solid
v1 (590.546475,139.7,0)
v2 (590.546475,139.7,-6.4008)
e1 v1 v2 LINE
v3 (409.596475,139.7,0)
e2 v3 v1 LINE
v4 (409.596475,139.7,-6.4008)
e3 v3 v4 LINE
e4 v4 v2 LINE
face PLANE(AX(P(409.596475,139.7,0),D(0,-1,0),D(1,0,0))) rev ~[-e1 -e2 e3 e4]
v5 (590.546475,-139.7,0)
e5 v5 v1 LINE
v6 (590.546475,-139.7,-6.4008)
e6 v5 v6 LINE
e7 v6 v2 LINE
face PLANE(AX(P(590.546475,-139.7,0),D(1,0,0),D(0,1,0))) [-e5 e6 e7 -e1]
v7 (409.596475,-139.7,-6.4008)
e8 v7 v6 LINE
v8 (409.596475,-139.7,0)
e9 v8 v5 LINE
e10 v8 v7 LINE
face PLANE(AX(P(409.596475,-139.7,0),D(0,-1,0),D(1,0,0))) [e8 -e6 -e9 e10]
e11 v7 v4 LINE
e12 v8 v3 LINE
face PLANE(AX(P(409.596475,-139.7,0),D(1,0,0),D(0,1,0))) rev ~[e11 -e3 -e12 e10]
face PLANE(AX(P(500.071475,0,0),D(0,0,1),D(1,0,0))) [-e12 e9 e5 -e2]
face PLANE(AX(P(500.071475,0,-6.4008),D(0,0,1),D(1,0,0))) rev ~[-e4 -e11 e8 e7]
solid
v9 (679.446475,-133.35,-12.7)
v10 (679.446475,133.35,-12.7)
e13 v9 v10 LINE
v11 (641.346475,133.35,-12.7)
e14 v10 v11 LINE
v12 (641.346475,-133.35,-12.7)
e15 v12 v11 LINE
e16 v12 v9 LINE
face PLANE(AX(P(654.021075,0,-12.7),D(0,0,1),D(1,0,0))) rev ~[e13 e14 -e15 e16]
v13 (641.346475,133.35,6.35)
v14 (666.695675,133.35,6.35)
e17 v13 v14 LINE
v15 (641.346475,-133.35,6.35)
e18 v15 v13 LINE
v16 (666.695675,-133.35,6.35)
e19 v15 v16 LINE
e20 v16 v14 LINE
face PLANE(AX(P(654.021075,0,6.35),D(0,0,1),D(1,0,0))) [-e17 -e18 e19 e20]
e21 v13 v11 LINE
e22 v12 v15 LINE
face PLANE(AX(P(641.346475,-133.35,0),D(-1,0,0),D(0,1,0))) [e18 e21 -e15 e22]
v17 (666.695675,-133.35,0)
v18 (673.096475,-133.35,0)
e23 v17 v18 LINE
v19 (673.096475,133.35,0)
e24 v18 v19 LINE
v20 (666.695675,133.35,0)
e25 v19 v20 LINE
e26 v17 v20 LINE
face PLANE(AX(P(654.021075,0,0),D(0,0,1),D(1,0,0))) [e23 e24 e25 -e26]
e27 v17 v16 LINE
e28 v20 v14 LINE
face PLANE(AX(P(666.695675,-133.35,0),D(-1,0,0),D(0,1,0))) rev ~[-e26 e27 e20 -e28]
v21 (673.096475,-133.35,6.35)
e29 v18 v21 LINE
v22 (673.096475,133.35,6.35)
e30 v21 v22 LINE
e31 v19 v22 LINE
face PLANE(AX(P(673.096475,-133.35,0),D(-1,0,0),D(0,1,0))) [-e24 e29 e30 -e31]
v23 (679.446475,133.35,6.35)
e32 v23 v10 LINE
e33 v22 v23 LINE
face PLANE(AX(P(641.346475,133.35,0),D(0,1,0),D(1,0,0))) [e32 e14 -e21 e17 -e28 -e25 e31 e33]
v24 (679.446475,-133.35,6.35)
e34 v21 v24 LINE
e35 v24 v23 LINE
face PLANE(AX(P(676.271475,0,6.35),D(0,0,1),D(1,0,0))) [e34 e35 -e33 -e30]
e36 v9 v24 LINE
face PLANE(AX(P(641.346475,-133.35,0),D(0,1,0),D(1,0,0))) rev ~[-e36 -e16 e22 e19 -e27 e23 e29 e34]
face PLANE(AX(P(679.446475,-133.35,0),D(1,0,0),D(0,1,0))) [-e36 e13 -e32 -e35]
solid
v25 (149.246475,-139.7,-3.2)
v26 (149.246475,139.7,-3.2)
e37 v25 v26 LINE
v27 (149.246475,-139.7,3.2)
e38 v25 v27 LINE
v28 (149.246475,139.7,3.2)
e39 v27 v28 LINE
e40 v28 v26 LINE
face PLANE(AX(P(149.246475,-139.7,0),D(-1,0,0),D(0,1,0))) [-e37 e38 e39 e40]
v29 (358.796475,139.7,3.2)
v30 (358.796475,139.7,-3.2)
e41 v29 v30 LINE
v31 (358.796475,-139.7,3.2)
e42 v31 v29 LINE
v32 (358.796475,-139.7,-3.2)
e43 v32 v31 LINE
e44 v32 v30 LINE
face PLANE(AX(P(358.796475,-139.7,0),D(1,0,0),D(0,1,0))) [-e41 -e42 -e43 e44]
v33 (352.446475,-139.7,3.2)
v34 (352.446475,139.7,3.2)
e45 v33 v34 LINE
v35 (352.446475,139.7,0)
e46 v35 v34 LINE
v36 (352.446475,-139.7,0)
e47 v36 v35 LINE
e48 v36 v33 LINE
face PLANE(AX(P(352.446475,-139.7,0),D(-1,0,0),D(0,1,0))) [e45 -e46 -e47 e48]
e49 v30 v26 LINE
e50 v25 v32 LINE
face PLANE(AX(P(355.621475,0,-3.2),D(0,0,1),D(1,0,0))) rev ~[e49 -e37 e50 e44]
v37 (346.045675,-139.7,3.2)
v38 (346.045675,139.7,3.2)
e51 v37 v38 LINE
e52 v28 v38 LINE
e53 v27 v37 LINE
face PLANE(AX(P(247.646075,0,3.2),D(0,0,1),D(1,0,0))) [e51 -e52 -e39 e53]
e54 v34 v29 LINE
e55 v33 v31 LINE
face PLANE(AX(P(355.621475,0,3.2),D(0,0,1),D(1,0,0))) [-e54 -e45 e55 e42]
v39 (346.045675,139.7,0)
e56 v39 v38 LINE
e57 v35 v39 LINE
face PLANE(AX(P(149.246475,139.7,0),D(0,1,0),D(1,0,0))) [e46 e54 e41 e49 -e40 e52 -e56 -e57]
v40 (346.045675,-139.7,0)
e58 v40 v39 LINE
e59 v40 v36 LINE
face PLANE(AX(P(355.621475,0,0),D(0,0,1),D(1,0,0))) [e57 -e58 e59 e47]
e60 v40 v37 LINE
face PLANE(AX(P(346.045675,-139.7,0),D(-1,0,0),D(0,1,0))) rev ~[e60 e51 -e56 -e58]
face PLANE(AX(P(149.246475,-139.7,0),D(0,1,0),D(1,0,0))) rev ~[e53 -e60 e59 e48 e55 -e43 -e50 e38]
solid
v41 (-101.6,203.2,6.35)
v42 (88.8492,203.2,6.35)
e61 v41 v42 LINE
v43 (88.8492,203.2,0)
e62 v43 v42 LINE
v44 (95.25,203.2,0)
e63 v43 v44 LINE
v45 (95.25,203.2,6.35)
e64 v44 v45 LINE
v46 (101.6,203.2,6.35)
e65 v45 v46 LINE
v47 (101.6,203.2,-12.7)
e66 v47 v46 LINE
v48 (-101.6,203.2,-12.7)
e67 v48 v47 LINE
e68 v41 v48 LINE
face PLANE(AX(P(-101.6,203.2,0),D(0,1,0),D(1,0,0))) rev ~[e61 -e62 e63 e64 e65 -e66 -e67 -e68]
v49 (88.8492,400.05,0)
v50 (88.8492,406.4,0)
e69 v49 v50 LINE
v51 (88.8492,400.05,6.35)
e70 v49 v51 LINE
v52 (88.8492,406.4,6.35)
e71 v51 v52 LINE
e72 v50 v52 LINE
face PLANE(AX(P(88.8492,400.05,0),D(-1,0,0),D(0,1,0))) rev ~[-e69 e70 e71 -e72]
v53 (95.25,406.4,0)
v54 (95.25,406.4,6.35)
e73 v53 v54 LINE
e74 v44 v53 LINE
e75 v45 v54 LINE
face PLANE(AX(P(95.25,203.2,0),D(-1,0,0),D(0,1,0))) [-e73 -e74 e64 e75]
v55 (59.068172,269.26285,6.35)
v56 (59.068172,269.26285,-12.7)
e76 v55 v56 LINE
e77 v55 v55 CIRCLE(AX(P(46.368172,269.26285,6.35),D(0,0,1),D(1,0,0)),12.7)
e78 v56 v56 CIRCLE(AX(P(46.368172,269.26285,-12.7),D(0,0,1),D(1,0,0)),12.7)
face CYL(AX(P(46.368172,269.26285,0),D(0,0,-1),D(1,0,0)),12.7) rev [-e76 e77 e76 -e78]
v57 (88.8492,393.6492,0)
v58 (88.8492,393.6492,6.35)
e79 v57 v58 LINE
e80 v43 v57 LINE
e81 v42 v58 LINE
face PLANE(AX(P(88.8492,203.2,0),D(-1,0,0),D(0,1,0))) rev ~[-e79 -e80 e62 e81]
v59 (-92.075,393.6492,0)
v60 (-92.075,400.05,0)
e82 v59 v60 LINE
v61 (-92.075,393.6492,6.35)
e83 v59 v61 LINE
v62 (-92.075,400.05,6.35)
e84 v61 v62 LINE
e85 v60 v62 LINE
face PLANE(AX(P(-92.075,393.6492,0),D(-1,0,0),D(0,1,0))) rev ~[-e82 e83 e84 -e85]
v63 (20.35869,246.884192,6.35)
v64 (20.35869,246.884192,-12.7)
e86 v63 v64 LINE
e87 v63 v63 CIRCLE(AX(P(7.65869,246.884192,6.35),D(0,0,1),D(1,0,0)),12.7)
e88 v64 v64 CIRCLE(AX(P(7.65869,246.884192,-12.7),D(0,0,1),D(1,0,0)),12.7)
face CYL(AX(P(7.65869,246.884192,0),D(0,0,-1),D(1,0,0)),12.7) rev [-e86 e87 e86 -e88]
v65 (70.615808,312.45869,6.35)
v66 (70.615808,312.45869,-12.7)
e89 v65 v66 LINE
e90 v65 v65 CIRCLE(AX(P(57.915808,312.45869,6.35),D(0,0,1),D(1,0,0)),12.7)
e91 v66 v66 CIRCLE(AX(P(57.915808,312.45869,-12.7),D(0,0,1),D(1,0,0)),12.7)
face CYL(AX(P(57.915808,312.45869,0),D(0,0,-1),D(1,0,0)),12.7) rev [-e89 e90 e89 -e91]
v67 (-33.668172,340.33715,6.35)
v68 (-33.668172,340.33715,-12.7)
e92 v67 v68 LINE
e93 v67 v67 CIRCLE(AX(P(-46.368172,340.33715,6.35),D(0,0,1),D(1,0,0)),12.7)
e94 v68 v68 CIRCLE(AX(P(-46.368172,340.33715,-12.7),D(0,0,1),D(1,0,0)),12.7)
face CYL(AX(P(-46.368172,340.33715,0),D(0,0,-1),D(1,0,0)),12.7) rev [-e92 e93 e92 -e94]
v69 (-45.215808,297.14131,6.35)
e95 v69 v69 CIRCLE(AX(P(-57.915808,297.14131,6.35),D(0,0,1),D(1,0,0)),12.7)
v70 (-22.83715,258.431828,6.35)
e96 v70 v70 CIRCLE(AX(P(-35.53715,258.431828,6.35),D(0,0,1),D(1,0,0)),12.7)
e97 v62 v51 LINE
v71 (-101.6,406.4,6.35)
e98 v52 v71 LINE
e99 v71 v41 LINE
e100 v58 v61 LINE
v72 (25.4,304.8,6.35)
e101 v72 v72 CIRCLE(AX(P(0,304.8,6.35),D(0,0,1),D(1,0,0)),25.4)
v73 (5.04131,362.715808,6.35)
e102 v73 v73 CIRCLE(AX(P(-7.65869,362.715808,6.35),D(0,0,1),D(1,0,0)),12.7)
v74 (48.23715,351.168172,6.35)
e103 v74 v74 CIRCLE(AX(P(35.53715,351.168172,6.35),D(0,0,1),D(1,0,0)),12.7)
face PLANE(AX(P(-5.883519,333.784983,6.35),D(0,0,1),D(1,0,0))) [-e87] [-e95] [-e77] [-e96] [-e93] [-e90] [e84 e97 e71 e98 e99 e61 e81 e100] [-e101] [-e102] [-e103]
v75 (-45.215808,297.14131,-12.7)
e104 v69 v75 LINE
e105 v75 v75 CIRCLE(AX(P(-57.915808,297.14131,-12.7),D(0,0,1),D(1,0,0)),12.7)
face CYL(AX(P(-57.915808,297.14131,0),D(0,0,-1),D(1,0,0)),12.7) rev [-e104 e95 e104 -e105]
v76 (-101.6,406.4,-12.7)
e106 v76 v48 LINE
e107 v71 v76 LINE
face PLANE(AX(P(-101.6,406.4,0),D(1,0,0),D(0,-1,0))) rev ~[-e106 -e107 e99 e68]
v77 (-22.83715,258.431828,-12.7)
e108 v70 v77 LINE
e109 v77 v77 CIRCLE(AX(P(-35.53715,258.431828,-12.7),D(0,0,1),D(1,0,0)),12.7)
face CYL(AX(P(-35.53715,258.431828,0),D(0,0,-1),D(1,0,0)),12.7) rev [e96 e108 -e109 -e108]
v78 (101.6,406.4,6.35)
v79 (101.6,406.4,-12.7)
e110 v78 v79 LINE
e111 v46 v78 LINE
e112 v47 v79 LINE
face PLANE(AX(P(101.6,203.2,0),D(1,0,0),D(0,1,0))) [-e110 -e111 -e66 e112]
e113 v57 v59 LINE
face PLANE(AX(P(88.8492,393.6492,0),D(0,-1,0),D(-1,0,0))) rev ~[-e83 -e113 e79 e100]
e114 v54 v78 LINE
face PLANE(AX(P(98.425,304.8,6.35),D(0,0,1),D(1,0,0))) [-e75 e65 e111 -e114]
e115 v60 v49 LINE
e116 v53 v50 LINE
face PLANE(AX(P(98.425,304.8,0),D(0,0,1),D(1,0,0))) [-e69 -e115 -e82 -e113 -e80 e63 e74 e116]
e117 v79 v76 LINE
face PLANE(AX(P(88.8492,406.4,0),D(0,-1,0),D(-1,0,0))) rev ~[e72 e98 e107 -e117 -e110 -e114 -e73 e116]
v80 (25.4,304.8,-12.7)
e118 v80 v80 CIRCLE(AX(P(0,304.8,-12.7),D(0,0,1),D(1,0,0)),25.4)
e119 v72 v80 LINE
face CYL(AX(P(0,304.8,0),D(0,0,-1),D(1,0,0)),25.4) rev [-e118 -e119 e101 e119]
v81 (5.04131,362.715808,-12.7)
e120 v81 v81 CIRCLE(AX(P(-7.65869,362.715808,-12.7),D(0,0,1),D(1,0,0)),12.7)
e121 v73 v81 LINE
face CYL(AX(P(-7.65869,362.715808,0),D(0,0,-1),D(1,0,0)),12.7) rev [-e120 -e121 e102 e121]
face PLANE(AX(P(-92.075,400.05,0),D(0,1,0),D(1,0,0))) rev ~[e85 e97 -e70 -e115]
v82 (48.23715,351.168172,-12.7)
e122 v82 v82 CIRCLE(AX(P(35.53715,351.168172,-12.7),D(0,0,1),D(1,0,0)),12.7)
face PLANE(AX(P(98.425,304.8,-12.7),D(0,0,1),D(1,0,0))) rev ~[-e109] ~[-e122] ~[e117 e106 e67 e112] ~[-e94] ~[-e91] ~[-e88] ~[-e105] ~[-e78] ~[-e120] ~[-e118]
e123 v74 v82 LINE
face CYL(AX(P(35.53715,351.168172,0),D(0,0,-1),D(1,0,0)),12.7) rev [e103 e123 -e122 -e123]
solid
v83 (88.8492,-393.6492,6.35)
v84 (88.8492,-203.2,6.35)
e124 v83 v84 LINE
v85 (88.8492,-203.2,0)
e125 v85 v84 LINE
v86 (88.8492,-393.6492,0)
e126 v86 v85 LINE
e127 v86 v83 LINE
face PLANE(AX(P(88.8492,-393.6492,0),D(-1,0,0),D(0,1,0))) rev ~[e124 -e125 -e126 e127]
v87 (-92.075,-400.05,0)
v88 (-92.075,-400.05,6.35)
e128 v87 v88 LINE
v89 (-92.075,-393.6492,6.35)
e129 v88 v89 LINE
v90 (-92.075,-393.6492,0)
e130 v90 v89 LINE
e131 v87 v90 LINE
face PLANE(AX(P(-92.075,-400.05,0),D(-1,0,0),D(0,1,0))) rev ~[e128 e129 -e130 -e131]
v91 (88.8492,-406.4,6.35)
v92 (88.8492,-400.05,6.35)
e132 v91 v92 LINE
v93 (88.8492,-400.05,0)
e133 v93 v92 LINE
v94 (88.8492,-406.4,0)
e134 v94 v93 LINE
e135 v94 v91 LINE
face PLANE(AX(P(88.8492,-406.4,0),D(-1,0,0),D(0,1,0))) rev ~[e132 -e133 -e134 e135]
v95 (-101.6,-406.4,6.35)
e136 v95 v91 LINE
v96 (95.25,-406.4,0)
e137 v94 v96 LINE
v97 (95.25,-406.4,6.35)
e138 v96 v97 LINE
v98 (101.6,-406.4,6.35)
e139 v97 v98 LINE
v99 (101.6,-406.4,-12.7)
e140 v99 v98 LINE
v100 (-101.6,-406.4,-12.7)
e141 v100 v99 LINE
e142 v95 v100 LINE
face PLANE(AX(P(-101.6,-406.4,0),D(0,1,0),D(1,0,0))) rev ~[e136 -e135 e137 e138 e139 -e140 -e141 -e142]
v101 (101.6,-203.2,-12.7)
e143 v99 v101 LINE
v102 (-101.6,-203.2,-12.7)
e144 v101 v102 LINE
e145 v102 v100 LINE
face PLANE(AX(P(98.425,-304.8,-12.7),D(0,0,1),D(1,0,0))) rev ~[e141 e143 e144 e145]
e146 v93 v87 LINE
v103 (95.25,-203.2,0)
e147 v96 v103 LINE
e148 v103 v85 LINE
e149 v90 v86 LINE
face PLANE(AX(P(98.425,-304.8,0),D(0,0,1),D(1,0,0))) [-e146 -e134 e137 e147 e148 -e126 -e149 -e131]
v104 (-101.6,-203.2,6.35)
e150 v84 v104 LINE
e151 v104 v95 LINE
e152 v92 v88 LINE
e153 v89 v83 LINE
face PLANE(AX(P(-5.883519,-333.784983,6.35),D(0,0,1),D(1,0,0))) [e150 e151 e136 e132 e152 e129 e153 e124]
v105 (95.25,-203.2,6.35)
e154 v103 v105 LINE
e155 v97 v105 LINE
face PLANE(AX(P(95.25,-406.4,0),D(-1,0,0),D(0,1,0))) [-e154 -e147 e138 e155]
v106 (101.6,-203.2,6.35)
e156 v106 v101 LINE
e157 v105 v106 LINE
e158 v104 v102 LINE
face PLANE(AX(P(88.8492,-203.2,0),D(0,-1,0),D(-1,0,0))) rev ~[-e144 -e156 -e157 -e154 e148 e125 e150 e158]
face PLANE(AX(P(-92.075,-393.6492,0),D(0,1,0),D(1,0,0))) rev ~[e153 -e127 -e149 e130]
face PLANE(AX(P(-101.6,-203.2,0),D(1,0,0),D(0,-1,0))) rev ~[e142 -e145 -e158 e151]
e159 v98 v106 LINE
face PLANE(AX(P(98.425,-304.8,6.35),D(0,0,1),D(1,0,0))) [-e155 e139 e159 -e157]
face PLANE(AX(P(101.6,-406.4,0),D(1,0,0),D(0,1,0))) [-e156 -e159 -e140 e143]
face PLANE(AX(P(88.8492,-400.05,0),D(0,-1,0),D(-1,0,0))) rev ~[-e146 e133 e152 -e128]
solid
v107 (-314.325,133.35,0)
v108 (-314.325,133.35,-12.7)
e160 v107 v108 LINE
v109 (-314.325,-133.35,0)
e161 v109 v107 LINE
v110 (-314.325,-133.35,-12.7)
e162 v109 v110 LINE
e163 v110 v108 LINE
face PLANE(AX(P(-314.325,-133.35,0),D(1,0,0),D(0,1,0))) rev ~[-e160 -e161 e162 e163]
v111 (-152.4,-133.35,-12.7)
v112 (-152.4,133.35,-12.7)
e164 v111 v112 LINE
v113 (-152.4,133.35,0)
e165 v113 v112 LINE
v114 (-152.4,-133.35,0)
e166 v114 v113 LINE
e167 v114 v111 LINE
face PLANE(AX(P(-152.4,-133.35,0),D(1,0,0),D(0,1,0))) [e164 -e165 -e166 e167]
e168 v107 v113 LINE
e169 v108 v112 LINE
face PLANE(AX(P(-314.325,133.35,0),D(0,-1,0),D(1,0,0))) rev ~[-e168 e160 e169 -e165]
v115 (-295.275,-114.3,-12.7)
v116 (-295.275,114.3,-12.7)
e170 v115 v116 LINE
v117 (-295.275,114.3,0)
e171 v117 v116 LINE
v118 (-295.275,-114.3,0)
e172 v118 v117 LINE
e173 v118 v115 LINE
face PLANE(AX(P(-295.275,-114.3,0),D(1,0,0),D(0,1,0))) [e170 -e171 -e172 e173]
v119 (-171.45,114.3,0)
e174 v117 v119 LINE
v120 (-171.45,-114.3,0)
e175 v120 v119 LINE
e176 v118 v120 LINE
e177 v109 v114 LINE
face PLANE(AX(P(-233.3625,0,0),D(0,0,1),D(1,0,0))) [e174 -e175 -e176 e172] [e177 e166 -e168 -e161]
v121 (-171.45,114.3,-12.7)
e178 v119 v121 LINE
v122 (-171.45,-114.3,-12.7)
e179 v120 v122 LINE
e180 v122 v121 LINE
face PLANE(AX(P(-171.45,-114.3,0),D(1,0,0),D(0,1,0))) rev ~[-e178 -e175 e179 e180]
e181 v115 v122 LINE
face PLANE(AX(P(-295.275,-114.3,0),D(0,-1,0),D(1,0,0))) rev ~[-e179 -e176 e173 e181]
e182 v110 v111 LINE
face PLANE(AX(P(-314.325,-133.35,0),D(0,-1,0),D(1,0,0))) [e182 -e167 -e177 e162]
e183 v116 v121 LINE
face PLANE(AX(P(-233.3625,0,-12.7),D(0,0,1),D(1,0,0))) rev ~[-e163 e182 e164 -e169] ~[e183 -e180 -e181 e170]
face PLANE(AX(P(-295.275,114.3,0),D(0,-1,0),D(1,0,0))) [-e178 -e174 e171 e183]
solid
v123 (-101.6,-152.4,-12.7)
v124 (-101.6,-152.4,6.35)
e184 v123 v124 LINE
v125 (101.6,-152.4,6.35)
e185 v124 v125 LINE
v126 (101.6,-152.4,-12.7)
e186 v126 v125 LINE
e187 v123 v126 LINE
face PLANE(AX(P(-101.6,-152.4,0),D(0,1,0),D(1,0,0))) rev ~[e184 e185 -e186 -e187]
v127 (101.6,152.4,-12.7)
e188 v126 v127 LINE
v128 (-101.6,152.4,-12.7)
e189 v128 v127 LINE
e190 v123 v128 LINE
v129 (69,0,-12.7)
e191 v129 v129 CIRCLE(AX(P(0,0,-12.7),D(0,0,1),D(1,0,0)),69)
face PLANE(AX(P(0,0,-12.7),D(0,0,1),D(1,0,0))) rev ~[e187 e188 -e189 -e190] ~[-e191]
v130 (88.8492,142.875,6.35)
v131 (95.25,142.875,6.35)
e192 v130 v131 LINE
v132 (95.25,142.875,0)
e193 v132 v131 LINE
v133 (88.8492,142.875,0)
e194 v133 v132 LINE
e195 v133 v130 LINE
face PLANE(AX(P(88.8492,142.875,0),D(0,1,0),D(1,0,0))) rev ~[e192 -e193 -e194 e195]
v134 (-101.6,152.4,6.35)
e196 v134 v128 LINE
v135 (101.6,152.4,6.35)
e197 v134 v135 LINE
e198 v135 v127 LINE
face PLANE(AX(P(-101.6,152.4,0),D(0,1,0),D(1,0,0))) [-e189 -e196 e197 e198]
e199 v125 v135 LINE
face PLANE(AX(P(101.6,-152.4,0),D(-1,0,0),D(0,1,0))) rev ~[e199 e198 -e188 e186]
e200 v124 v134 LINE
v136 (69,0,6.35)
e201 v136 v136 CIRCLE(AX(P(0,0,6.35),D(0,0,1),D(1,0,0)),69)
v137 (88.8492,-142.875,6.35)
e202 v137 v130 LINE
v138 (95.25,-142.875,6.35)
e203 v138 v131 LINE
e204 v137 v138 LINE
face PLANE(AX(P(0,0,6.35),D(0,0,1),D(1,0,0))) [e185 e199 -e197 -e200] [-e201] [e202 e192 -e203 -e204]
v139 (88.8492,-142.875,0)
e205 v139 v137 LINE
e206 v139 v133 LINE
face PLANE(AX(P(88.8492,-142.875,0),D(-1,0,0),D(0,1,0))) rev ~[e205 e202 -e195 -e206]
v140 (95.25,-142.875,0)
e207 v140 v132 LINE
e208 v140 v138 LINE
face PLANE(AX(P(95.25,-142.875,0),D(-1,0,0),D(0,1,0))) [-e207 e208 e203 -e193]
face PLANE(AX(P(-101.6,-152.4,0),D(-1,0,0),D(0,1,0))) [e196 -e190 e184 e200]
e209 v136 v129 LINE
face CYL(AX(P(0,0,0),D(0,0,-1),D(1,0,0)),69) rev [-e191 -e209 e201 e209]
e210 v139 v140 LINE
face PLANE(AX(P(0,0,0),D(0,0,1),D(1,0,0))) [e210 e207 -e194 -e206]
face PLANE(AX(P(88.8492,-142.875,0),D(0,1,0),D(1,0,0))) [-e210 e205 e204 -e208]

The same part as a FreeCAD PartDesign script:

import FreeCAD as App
import Part
import Sketcher
from FreeCAD import Vector
Q = App.Units.Quantity


def add_polygon(sketch, points):
    """Adds a closed chain of lines whose ends are joined by coincident constraints."""
    first, n = sketch.GeometryCount, len(points)
    for a, b in zip(points, points[1:] + points[:1]):
        sketch.addGeometry(Part.LineSegment(App.Vector(*a, 0), App.Vector(*b, 0)), False)
    for i in range(n):
        sketch.addConstraint(Sketcher.Constraint("Coincident", first + i, 2, first + (i + 1) % n, 1))

doc = App.newDocument("Part")
body = doc.addObject("PartDesign::Body", "Body")

# Sketch on XY plane
sketch1 = doc.addObject("Sketcher::SketchObject", "Sketch")
body.addObject(sketch1)
sketch1.AttachmentSupport = (doc.XY_Plane, [""])
sketch1.MapMode = "FlatFace"
add_polygon(sketch1, [(-102, 152), (-102, -152), (102, -152), (102, 152)])  # lines 0-3
sketch1.addGeometry(Part.Circle(Vector(0, 0, 0), Vector(0, 0, 1), 69), False)  # 4
sketch1.addConstraint(Sketcher.Constraint("Vertical", 0))
sketch1.addConstraint(Sketcher.Constraint("Horizontal", 1))
sketch1.addConstraint(Sketcher.Constraint("Vertical", 2))
sketch1.addConstraint(Sketcher.Constraint("Horizontal", 3))
sketch1.addConstraint(Sketcher.Constraint("Coincident", 4, 3, -1, 1))
sketch1.addConstraint(Sketcher.Constraint("Symmetric", 0, 2, 2, 2, -1, 1))
sketch1.addConstraint(Sketcher.Constraint("DistanceX", 1, 1, 1, 2, Q("8 in")))
sketch1.addConstraint(Sketcher.Constraint("DistanceY", 0, 2, 0, 1, Q("12 in")))
sketch1.addConstraint(Sketcher.Constraint("Diameter", 4, 138.0))
pad1 = doc.addObject("PartDesign::Pad", "Pad")
body.addObject(pad1)
pad1.Profile = sketch1
pad1.Length = Q("0.5 in")
pad1.Reversed = True

# Sketch on XY plane
sketch2 = doc.addObject("Sketcher::SketchObject", "Sketch001")
body.addObject(sketch2)
sketch2.AttachmentSupport = (doc.XY_Plane, [""])
sketch2.MapMode = "FlatFace"
add_polygon(sketch2, [(-102, 152), (-102, -152), (102, -152), (102, 152)])  # lines 0-3
sketch2.addGeometry(Part.Circle(Vector(0, 0, 0), Vector(0, 0, 1), 69), False)  # 4
add_polygon(sketch2, [(95, -143), (89, -143), (89, 143), (95, 143)])  # lines 5-8
sketch2.addConstraint(Sketcher.Constraint("Vertical", 0))
sketch2.addConstraint(Sketcher.Constraint("Horizontal", 1))
sketch2.addConstraint(Sketcher.Constraint("Vertical", 2))
sketch2.addConstraint(Sketcher.Constraint("Horizontal", 3))
sketch2.addConstraint(Sketcher.Constraint("Horizontal", 5))
sketch2.addConstraint(Sketcher.Constraint("Vertical", 6))
sketch2.addConstraint(Sketcher.Constraint("Horizontal", 7))
sketch2.addConstraint(Sketcher.Constraint("Vertical", 8))
sketch2.addConstraint(Sketcher.Constraint("Coincident", 4, 3, -1, 1))
sketch2.addConstraint(Sketcher.Constraint("Symmetric", 0, 2, 2, 2, -1, 1))
sketch2.addConstraint(Sketcher.Constraint("DistanceX", 1, 1, 1, 2, Q("8 in")))
sketch2.addConstraint(Sketcher.Constraint("DistanceY", 0, 2, 0, 1, Q("12 in")))
sketch2.addConstraint(Sketcher.Constraint("DistanceY", 6, 1, 6, 2, Q("11.25 in")))
sketch2.addConstraint(Sketcher.Constraint("Diameter", 4, 138.0))
sketch2.addConstraint(Sketcher.Constraint("DistanceX", 5, 2, 5, 1, Q("0.252 in")))
sketch2.addConstraint(Sketcher.Constraint("DistanceX", -1, 1, 7, 2, Q("3.75 in")))
sketch2.addConstraint(Sketcher.Constraint("DistanceY", 5, 2, -1, 1, Q("5.625 in")))
pad2 = doc.addObject("PartDesign::Pad", "Pad001")
body.addObject(pad2)
pad2.Profile = sketch2
pad2.Length = Q("0.25 in")
body2 = doc.addObject("PartDesign::Body", "Body001")

# Sketch on XY plane
sketch3 = doc.addObject("Sketcher::SketchObject", "Sketch002")
body2.addObject(sketch3)
sketch3.AttachmentSupport = (doc.getObject("XY_Plane001"), [""])
sketch3.MapMode = "FlatFace"
add_polygon(sketch3, [(102, -406), (102, -203), (-102, -203), (-102, -406)])  # lines 0-3
sketch3.addConstraint(Sketcher.Constraint("Vertical", 0))
sketch3.addConstraint(Sketcher.Constraint("Horizontal", 1))
sketch3.addConstraint(Sketcher.Constraint("Vertical", 2))
sketch3.addConstraint(Sketcher.Constraint("Horizontal", 3))
sketch3.addConstraint(Sketcher.Constraint("Equal", 3, 0))
sketch3.addConstraint(Sketcher.Constraint("DistanceX", 1, 2, 1, 1, Q("8 in")))
sketch3.addConstraint(Sketcher.Constraint("DistanceX", -1, 1, 0, 2, Q("4 in")))
sketch3.addConstraint(Sketcher.Constraint("DistanceY", 0, 2, -1, 1, Q("8 in")))
pad3 = doc.addObject("PartDesign::Pad", "Pad002")
body2.addObject(pad3)
pad3.Profile = sketch3
pad3.Length = Q("0.5 in")
pad3.Reversed = True

# Sketch on XY plane
sketch4 = doc.addObject("Sketcher::SketchObject", "Sketch003")
body2.addObject(sketch4)
sketch4.AttachmentSupport = (doc.getObject("XY_Plane001"), [""])
sketch4.MapMode = "FlatFace"
add_polygon(sketch4, [(-102, -406), (89, -406), (89, -400), (-92, -400), (-92, -394), (89, -394), (89, -203), (-102, -203)])  # lines 0-7
add_polygon(sketch4, [(95, -203), (95, -406), (102, -406), (102, -203)])  # lines 8-11
sketch4.addConstraint(Sketcher.Constraint("Horizontal", 0))
sketch4.addConstraint(Sketcher.Constraint("Vertical", 1))
sketch4.addConstraint(Sketcher.Constraint("Horizontal", 2))
sketch4.addConstraint(Sketcher.Constraint("Vertical", 3))
sketch4.addConstraint(Sketcher.Constraint("Horizontal", 4))
sketch4.addConstraint(Sketcher.Constraint("Vertical", 5))
sketch4.addConstraint(Sketcher.Constraint("Horizontal", 6))
sketch4.addConstraint(Sketcher.Constraint("Vertical", 7))
sketch4.addConstraint(Sketcher.Constraint("Vertical", 8))
sketch4.addConstraint(Sketcher.Constraint("Horizontal", 9))
sketch4.addConstraint(Sketcher.Constraint("Vertical", 10))
sketch4.addConstraint(Sketcher.Constraint("Horizontal", 11))
sketch4.addConstraint(Sketcher.Constraint("Symmetric", 7, 2, 9, 2, -2))
sketch4.addConstraint(Sketcher.Constraint("Horizontal", 6, 2, 10, 2))
sketch4.addConstraint(Sketcher.Constraint("Vertical", 1, 2, 4, 2))
sketch4.addConstraint(Sketcher.Constraint("Equal", 11, 1))
sketch4.addConstraint(Sketcher.Constraint("Equal", 6, 5))
sketch4.addConstraint(Sketcher.Constraint("DistanceY", 7, 2, 7, 1, Q("8 in")))
sketch4.addConstraint(Sketcher.Constraint("DistanceY", 0, 2, -1, 1, Q("16 in")))
sketch4.addConstraint(Sketcher.Constraint("DistanceX", 6, 2, -1, 1, Q("4 in")))
sketch4.addConstraint(Sketcher.Constraint("DistanceX", 9, 1, 9, 2, Q("0.25 in")))
sketch4.addConstraint(Sketcher.Constraint("DistanceX", 0, 1, 0, 2, Q("7.498 in")))
sketch4.addConstraint(Sketcher.Constraint("DistanceX", 2, 2, 2, 1, Q("7.123 in")))
pad4 = doc.addObject("PartDesign::Pad", "Pad003")
body2.addObject(pad4)
pad4.Profile = sketch4
pad4.Length = Q("0.25 in")
body3 = doc.addObject("PartDesign::Body", "Body002")

# Sketch on XY plane
sketch5 = doc.addObject("Sketcher::SketchObject", "Sketch004")
body3.addObject(sketch5)
sketch5.AttachmentSupport = (doc.getObject("XY_Plane002"), [""])
sketch5.MapMode = "FlatFace"
add_polygon(sketch5, [(102, 203), (102, 406), (-102, 406), (-102, 203)])  # lines 0-3
sketch5.addGeometry(Part.Circle(Vector(58, 312, 0), Vector(0, 0, 1), 13), False)  # 4
sketch5.addGeometry(Part.Circle(Vector(36, 351, 0), Vector(0, 0, 1), 13), False)  # 5
sketch5.addGeometry(Part.Circle(Vector(-36, 258, 0), Vector(0, 0, 1), 13), False)  # 6
sketch5.addGeometry(Part.Circle(Vector(-58, 297, 0), Vector(0, 0, 1), 13), False)  # 7
sketch5.addGeometry(Part.Circle(Vector(8, 247, 0), Vector(0, 0, 1), 13), False)  # 8
sketch5.addGeometry(Part.Circle(Vector(46, 269, 0), Vector(0, 0, 1), 13), False)  # 9
sketch5.addGeometry(Part.Circle(Vector(-46, 340, 0), Vector(0, 0, 1), 13), False)  # 10
sketch5.addGeometry(Part.Circle(Vector(-8, 363, 0), Vector(0, 0, 1), 13), False)  # 11
sketch5.addGeometry(Part.Circle(Vector(0, 305, 0), Vector(0, 0, 1), 25), False)  # 12
sketch5.addConstraint(Sketcher.Constraint("Vertical", 0))
sketch5.addConstraint(Sketcher.Constraint("Horizontal", 1))
sketch5.addConstraint(Sketcher.Constraint("Vertical", 2))
sketch5.addConstraint(Sketcher.Constraint("Horizontal", 3))
sketch5.addConstraint(Sketcher.Constraint("Equal", 4, 5))
sketch5.addConstraint(Sketcher.Constraint("Equal", 5, 6))
sketch5.addConstraint(Sketcher.Constraint("Equal", 6, 7))
sketch5.addConstraint(Sketcher.Constraint("Equal", 7, 8))
sketch5.addConstraint(Sketcher.Constraint("Equal", 8, 9))
sketch5.addConstraint(Sketcher.Constraint("Equal", 9, 10))
sketch5.addConstraint(Sketcher.Constraint("Equal", 10, 11))
sketch5.addConstraint(Sketcher.Constraint("PointOnObject", 12, 3, -2))
sketch5.addConstraint(Sketcher.Constraint("Equal", 3, 0))
sketch5.addConstraint(Sketcher.Constraint("Diameter", 4, Q("1 in")))
sketch5.addConstraint(Sketcher.Constraint("Diameter", 12, Q("2 in")))
sketch5.addConstraint(Sketcher.Constraint("DistanceX", 1, 2, 1, 1, Q("8 in")))
sketch5.addConstraint(Sketcher.Constraint("DistanceY", -1, 1, 12, 3, Q("12 in")))
sketch5.addConstraint(Sketcher.Constraint("DistanceX", -1, 1, 0, 2, Q("4 in")))
sketch5.addConstraint(Sketcher.Constraint("DistanceY", -1, 1, 0, 2, Q("16 in")))
sketch5.addConstraint(Sketcher.Constraint("DistanceX", 7, 3, 4, 3, Q("4.5602999 in")))
sketch5.addConstraint(Sketcher.Constraint("DistanceX", 6, 3, 5, 3, 71.074299))
sketch5.addConstraint(Sketcher.Constraint("DistanceY", 8, 3, 4, 3, 65.574498))
sketch5.addConstraint(Sketcher.Constraint("DistanceX", 7, 3, 8, 3, 65.574498))
sketch5.addConstraint(Sketcher.Constraint("DistanceX", 11, 3, 4, 3, 65.574498))
sketch5.addConstraint(Sketcher.Constraint("DistanceY", 7, 3, 11, 3, 65.574498))
sketch5.addConstraint(Sketcher.Constraint("DistanceX", -1, 1, 4, 3, 57.915808))
sketch5.addConstraint(Sketcher.Constraint("DistanceY", -1, 1, 4, 3, 312.45869))
sketch5.addConstraint(Sketcher.Constraint("DistanceX", -1, 1, 5, 3, 35.53715))
sketch5.addConstraint(Sketcher.Constraint("DistanceY", -1, 1, 7, 3, 297.14131))
sketch5.addConstraint(Sketcher.Constraint("DistanceY", -1, 1, 9, 3, 269.26285))
sketch5.addConstraint(Sketcher.Constraint("DistanceY", -1, 1, 10, 3, 340.33715))
sketch5.addConstraint(Sketcher.Constraint("DistanceY", 6, 3, 4, 3, 54.026862))
sketch5.addConstraint(Sketcher.Constraint("DistanceY", 7, 3, 5, 3, 54.026862))
sketch5.addConstraint(Sketcher.Constraint("DistanceX", 6, 3, 9, 3, 81.905322))
sketch5.addConstraint(Sketcher.Constraint("DistanceX", 10, 3, 5, 3, 81.905322))
pad5 = doc.addObject("PartDesign::Pad", "Pad004")
body3.addObject(pad5)
pad5.Profile = sketch5
pad5.Length = Q("0.5 in")
pad5.Reversed = True

# Sketch on XY plane
sketch6 = doc.addObject("Sketcher::SketchObject", "Sketch005")
body3.addObject(sketch6)
sketch6.AttachmentSupport = (doc.getObject("XY_Plane002"), [""])
sketch6.MapMode = "FlatFace"
add_polygon(sketch6, [(-102, 203), (89, 203), (89, 394), (-92, 394), (-92, 400), (89, 400), (89, 406), (-102, 406)])  # lines 0-7
sketch6.addGeometry(Part.Circle(Vector(-36, 258, 0), Vector(0, 0, 1), 13), False)  # 8
sketch6.addGeometry(Part.Circle(Vector(-58, 297, 0), Vector(0, 0, 1), 13), False)  # 9
sketch6.addGeometry(Part.Circle(Vector(8, 247, 0), Vector(0, 0, 1), 13), False)  # 10
sketch6.addGeometry(Part.Circle(Vector(46, 269, 0), Vector(0, 0, 1), 13), False)  # 11
sketch6.addGeometry(Part.Circle(Vector(-46, 340, 0), Vector(0, 0, 1), 13), False)  # 12
sketch6.addGeometry(Part.Circle(Vector(-8, 363, 0), Vector(0, 0, 1), 13), False)  # 13
sketch6.addGeometry(Part.Circle(Vector(0, 305, 0), Vector(0, 0, 1), 25), False)  # 14
sketch6.addGeometry(Part.Circle(Vector(58, 312, 0), Vector(0, 0, 1), 13), False)  # 15
sketch6.addGeometry(Part.Circle(Vector(36, 351, 0), Vector(0, 0, 1), 13), False)  # 16
add_polygon(sketch6, [(95, 406), (95, 203), (102, 203), (102, 406)])  # lines 17-20
sketch6.addConstraint(Sketcher.Constraint("Horizontal", 0))
sketch6.addConstraint(Sketcher.Constraint("Vertical", 1))
sketch6.addConstraint(Sketcher.Constraint("Horizontal", 2))
sketch6.addConstraint(Sketcher.Constraint("Vertical", 3))
sketch6.addConstraint(Sketcher.Constraint("Horizontal", 4))
sketch6.addConstraint(Sketcher.Constraint("Vertical", 5))
sketch6.addConstraint(Sketcher.Constraint("Horizontal", 6))
sketch6.addConstraint(Sketcher.Constraint("Vertical", 7))
sketch6.addConstraint(Sketcher.Constraint("Vertical", 17))
sketch6.addConstraint(Sketcher.Constraint("Horizontal", 18))
sketch6.addConstraint(Sketcher.Constraint("Vertical", 19))
sketch6.addConstraint(Sketcher.Constraint("Horizontal", 20))
sketch6.addConstraint(Sketcher.Constraint("Equal", 8, 9))
sketch6.addConstraint(Sketcher.Constraint("Equal", 9, 10))
sketch6.addConstraint(Sketcher.Constraint("Equal", 10, 11))
sketch6.addConstraint(Sketcher.Constraint("Equal", 11, 12))
sketch6.addConstraint(Sketcher.Constraint("Equal", 12, 13))
sketch6.addConstraint(Sketcher.Constraint("Equal", 13, 15))
sketch6.addConstraint(Sketcher.Constraint("Equal", 15, 16))
sketch6.addConstraint(Sketcher.Constraint("Symmetric", 7, 2, 18, 2, -2))
sketch6.addConstraint(Sketcher.Constraint("PointOnObject", 14, 3, -2))
sketch6.addConstraint(Sketcher.Constraint("Horizontal", 6, 2, 19, 2))
sketch6.addConstraint(Sketcher.Constraint("Vertical", 1, 2, 4, 2))
sketch6.addConstraint(Sketcher.Constraint("Equal", 6, 1))
sketch6.addConstraint(Sketcher.Constraint("Equal", 20, 5))
sketch6.addConstraint(Sketcher.Constraint("Diameter", 8, Q("1 in")))
sketch6.addConstraint(Sketcher.Constraint("Diameter", 14, Q("2 in")))
sketch6.addConstraint(Sketcher.Constraint("DistanceY", 7, 2, 7, 1, Q("8 in")))
sketch6.addConstraint(Sketcher.Constraint("DistanceY", -1, 1, 14, 3, Q("12 in")))
sketch6.addConstraint(Sketcher.Constraint("DistanceY", -1, 1, 0, 2, Q("8 in")))
sketch6.addConstraint(Sketcher.Constraint("DistanceX", 6, 2, -1, 1, Q("4 in")))
sketch6.addConstraint(Sketcher.Constraint("DistanceX", 18, 1, 18, 2, Q("0.25 in")))
sketch6.addConstraint(Sketcher.Constraint("DistanceX", 0, 1, 0, 2, Q("7.498 in")))
sketch6.addConstraint(Sketcher.Constraint("DistanceX", 2, 2, 2, 1, Q("7.123 in")))
sketch6.addConstraint(Sketcher.Constraint("DistanceY", 10, 3, 13, 3, Q("4.5602999 in")))
sketch6.addConstraint(Sketcher.Constraint("DistanceX", 9, 3, 10, 3, 65.574498))
sketch6.addConstraint(Sketcher.Constraint("DistanceY", 11, 3, 12, 3, 71.074299))
sketch6.addConstraint(Sketcher.Constraint("DistanceY", 9, 3, 13, 3, 65.574498))
sketch6.addConstraint(Sketcher.Constraint("DistanceY", 10, 3, 15, 3, 65.574498))
sketch6.addConstraint(Sketcher.Constraint("DistanceX", 13, 3, 15, 3, 65.574498))
sketch6.addConstraint(Sketcher.Constraint("DistanceX", 8, 3, -1, 1, 35.53715))
sketch6.addConstraint(Sketcher.Constraint("DistanceX", 9, 3, -1, 1, 57.915808))
sketch6.addConstraint(Sketcher.Constraint("DistanceY", -1, 1, 9, 3, 297.14131))
sketch6.addConstraint(Sketcher.Constraint("DistanceY", -1, 1, 11, 3, 269.26285))
sketch6.addConstraint(Sketcher.Constraint("DistanceX", 13, 3, -1, 1, 7.65869))
sketch6.addConstraint(Sketcher.Constraint("DistanceX", -1, 1, 16, 3, 35.53715))
sketch6.addConstraint(Sketcher.Constraint("DistanceX", 8, 3, 11, 3, 81.905322))
sketch6.addConstraint(Sketcher.Constraint("DistanceY", 8, 3, 12, 3, 81.905322))
sketch6.addConstraint(Sketcher.Constraint("DistanceX", 12, 3, 10, 3, 54.026862))
sketch6.addConstraint(Sketcher.Constraint("DistanceY", 11, 3, 16, 3, 81.905322))
pad6 = doc.addObject("PartDesign::Pad", "Pad005")
body3.addObject(pad6)
pad6.Profile = sketch6
pad6.Length = Q("0.25 in")
body4 = doc.addObject("PartDesign::Body", "Body003")

# Sketch on XY plane
sketch7 = doc.addObject("Sketcher::SketchObject", "Sketch006")
body4.addObject(sketch7)
sketch7.AttachmentSupport = (doc.getObject("XY_Plane003"), [""])
sketch7.MapMode = "FlatFace"
add_polygon(sketch7, [(359, -140), (359, 140), (149, 140), (149, -140)])  # lines 0-3
sketch7.addConstraint(Sketcher.Constraint("Vertical", 0))
sketch7.addConstraint(Sketcher.Constraint("Horizontal", 1))
sketch7.addConstraint(Sketcher.Constraint("Vertical", 2))
sketch7.addConstraint(Sketcher.Constraint("Horizontal", 3))
sketch7.addConstraint(Sketcher.Constraint("DistanceY", 0, 1, 0, 2, Q("11 in")))
sketch7.addConstraint(Sketcher.Constraint("DistanceX", 1, 2, 1, 1, Q("8.25 in")))
sketch7.addConstraint(Sketcher.Constraint("DistanceY", -1, 1, 0, 2, Q("5.5 in")))
sketch7.addConstraint(Sketcher.Constraint("DistanceX", -1, 1, 0, 2, 358.796475))
pad7 = doc.addObject("PartDesign::Pad", "Pad006")
body4.addObject(pad7)
pad7.Profile = sketch7
pad7.Length = 3.2
pad7.Reversed = True

# Sketch on XY plane
sketch8 = doc.addObject("Sketcher::SketchObject", "Sketch007")
body4.addObject(sketch8)
sketch8.AttachmentSupport = (doc.getObject("XY_Plane003"), [""])
sketch8.MapMode = "FlatFace"
add_polygon(sketch8, [(149, 140), (149, -140), (346, -140), (346, 140)])  # lines 0-3
add_polygon(sketch8, [(352, 140), (352, -140), (359, -140), (359, 140)])  # lines 4-7
sketch8.addConstraint(Sketcher.Constraint("Vertical", 0))
sketch8.addConstraint(Sketcher.Constraint("Horizontal", 1))
sketch8.addConstraint(Sketcher.Constraint("Vertical", 2))
sketch8.addConstraint(Sketcher.Constraint("Horizontal", 3))
sketch8.addConstraint(Sketcher.Constraint("Vertical", 4))
sketch8.addConstraint(Sketcher.Constraint("Horizontal", 5))
sketch8.addConstraint(Sketcher.Constraint("Vertical", 6))
sketch8.addConstraint(Sketcher.Constraint("Horizontal", 7))
sketch8.addConstraint(Sketcher.Constraint("Horizontal", 1, 2, 4, 2))
sketch8.addConstraint(Sketcher.Constraint("Horizontal", 3, 2, 6, 2))
sketch8.addConstraint(Sketcher.Constraint("DistanceY", 0, 2, 0, 1, Q("11 in")))
sketch8.addConstraint(Sketcher.Constraint("DistanceX", 0, 2, 4, 2, Q("8 in")))
sketch8.addConstraint(Sketcher.Constraint("DistanceX", 5, 1, 5, 2, Q("0.25 in")))
sketch8.addConstraint(Sketcher.Constraint("DistanceY", 0, 2, -1, 1, Q("5.5 in")))
sketch8.addConstraint(Sketcher.Constraint("DistanceX", 1, 1, 1, 2, Q("7.748 in")))
sketch8.addConstraint(Sketcher.Constraint("DistanceX", -1, 1, 0, 2, 149.246475))
pad8 = doc.addObject("PartDesign::Pad", "Pad007")
body4.addObject(pad8)
pad8.Profile = sketch8
pad8.Length = 3.2
body5 = doc.addObject("PartDesign::Body", "Body004")

# Sketch on XY plane
sketch9 = doc.addObject("Sketcher::SketchObject", "Sketch008")
body5.addObject(sketch9)
sketch9.AttachmentSupport = (doc.getObject("XY_Plane004"), [""])
sketch9.MapMode = "FlatFace"
add_polygon(sketch9, [(-314, 133), (-314, -133), (-152, -133), (-152, 133)])  # lines 0-3
add_polygon(sketch9, [(-171, -114), (-295, -114), (-295, 114), (-171, 114)])  # lines 4-7
sketch9.addConstraint(Sketcher.Constraint("Vertical", 0))
sketch9.addConstraint(Sketcher.Constraint("Horizontal", 1))
sketch9.addConstraint(Sketcher.Constraint("Vertical", 2))
sketch9.addConstraint(Sketcher.Constraint("Horizontal", 3))
sketch9.addConstraint(Sketcher.Constraint("Horizontal", 4))
sketch9.addConstraint(Sketcher.Constraint("Vertical", 5))
sketch9.addConstraint(Sketcher.Constraint("Horizontal", 6))
sketch9.addConstraint(Sketcher.Constraint("Vertical", 7))
sketch9.addConstraint(Sketcher.Constraint("DistanceY", 5, 1, 5, 2, Q("9 in")))
sketch9.addConstraint(Sketcher.Constraint("DistanceY", 0, 2, 0, 1, Q("10.5 in")))
sketch9.addConstraint(Sketcher.Constraint("DistanceX", 1, 2, -1, 1, Q("6 in")))
sketch9.addConstraint(Sketcher.Constraint("DistanceY", 4, 2, -1, 1, Q("4.5 in")))
sketch9.addConstraint(Sketcher.Constraint("DistanceX", 1, 1, 1, 2, Q("6.375 in")))
sketch9.addConstraint(Sketcher.Constraint("DistanceX", 4, 2, 4, 1, Q("4.875 in")))
sketch9.addConstraint(Sketcher.Constraint("DistanceY", 0, 2, -1, 1, Q("5.25 in")))
sketch9.addConstraint(Sketcher.Constraint("DistanceX", 6, 2, -1, 1, Q("6.75 in")))
pad9 = doc.addObject("PartDesign::Pad", "Pad008")
body5.addObject(pad9)
pad9.Profile = sketch9
pad9.Length = Q("0.5 in")
pad9.Reversed = True
body6 = doc.addObject("PartDesign::Body", "Body005")

# Sketch on XY plane
sketch10 = doc.addObject("Sketcher::SketchObject", "Sketch009")
body6.addObject(sketch10)
sketch10.AttachmentSupport = (doc.getObject("XY_Plane005"), [""])
sketch10.MapMode = "FlatFace"
add_polygon(sketch10, [(410, 140), (410, -140), (591, -140), (591, 140)])  # lines 0-3
sketch10.addConstraint(Sketcher.Constraint("Vertical", 0))
sketch10.addConstraint(Sketcher.Constraint("Horizontal", 1))
sketch10.addConstraint(Sketcher.Constraint("Vertical", 2))
sketch10.addConstraint(Sketcher.Constraint("Horizontal", 3))
sketch10.addConstraint(Sketcher.Constraint("DistanceY", 0, 2, 0, 1, Q("11 in")))
sketch10.addConstraint(Sketcher.Constraint("DistanceY", 0, 2, -1, 1, Q("5.5 in")))
sketch10.addConstraint(Sketcher.Constraint("DistanceX", 1, 1, 1, 2, 180.95))
sketch10.addConstraint(Sketcher.Constraint("DistanceX", -1, 1, 0, 2, 409.596475))
pad10 = doc.addObject("PartDesign::Pad", "Pad009")
body6.addObject(pad10)
pad10.Profile = sketch10
pad10.Length = Q("0.252 in")
pad10.Reversed = True
body7 = doc.addObject("PartDesign::Body", "Body006")

# Sketch on XY plane
sketch11 = doc.addObject("Sketcher::SketchObject", "Sketch010")
body7.addObject(sketch11)
sketch11.AttachmentSupport = (doc.getObject("XY_Plane006"), [""])
sketch11.MapMode = "FlatFace"
add_polygon(sketch11, [(641, 133), (641, -133), (679, -133), (679, 133)])  # lines 0-3
sketch11.addConstraint(Sketcher.Constraint("Vertical", 0))
sketch11.addConstraint(Sketcher.Constraint("Horizontal", 1))
sketch11.addConstraint(Sketcher.Constraint("Vertical", 2))
sketch11.addConstraint(Sketcher.Constraint("Horizontal", 3))
sketch11.addConstraint(Sketcher.Constraint("DistanceX", 1, 1, 1, 2, Q("1.5 in")))
sketch11.addConstraint(Sketcher.Constraint("DistanceY", 0, 2, 0, 1, Q("10.5 in")))
sketch11.addConstraint(Sketcher.Constraint("DistanceY", 0, 2, -1, 1, Q("5.25 in")))
sketch11.addConstraint(Sketcher.Constraint("DistanceX", -1, 1, 0, 2, 641.346475))
pad11 = doc.addObject("PartDesign::Pad", "Pad010")
body7.addObject(pad11)
pad11.Profile = sketch11
pad11.Length = Q("0.5 in")
pad11.Reversed = True

# Sketch on XY plane
sketch12 = doc.addObject("Sketcher::SketchObject", "Sketch011")
body7.addObject(sketch12)
sketch12.AttachmentSupport = (doc.getObject("XY_Plane006"), [""])
sketch12.MapMode = "FlatFace"
add_polygon(sketch12, [(641, 133), (641, -133), (667, -133), (667, 133)])  # lines 0-3
add_polygon(sketch12, [(673, 133), (673, -133), (679, -133), (679, 133)])  # lines 4-7
sketch12.addConstraint(Sketcher.Constraint("Vertical", 0))
sketch12.addConstraint(Sketcher.Constraint("Horizontal", 1))
sketch12.addConstraint(Sketcher.Constraint("Vertical", 2))
sketch12.addConstraint(Sketcher.Constraint("Horizontal", 3))
sketch12.addConstraint(Sketcher.Constraint("Vertical", 4))
sketch12.addConstraint(Sketcher.Constraint("Horizontal", 5))
sketch12.addConstraint(Sketcher.Constraint("Vertical", 6))
sketch12.addConstraint(Sketcher.Constraint("Horizontal", 7))
sketch12.addConstraint(Sketcher.Constraint("Horizontal", 1, 2, 4, 2))
sketch12.addConstraint(Sketcher.Constraint("Horizontal", 3, 2, 6, 2))
sketch12.addConstraint(Sketcher.Constraint("DistanceY", 0, 2, 0, 1, Q("10.5 in")))
sketch12.addConstraint(Sketcher.Constraint("DistanceX", 5, 1, 5, 2, Q("0.25 in")))
sketch12.addConstraint(Sketcher.Constraint("DistanceX", 0, 2, 5, 2, Q("1.5 in")))
sketch12.addConstraint(Sketcher.Constraint("DistanceX", 1, 1, 1, 2, Q("0.998 in")))
sketch12.addConstraint(Sketcher.Constraint("DistanceY", 0, 2, -1, 1, Q("5.25 in")))
sketch12.addConstraint(Sketcher.Constraint("DistanceX", -1, 1, 0, 2, 641.346475))
pad12 = doc.addObject("PartDesign::Pad", "Pad011")
body7.addObject(pad12)
pad12.Profile = sketch12
pad12.Length = Q("0.25 in")

doc.recompute()
